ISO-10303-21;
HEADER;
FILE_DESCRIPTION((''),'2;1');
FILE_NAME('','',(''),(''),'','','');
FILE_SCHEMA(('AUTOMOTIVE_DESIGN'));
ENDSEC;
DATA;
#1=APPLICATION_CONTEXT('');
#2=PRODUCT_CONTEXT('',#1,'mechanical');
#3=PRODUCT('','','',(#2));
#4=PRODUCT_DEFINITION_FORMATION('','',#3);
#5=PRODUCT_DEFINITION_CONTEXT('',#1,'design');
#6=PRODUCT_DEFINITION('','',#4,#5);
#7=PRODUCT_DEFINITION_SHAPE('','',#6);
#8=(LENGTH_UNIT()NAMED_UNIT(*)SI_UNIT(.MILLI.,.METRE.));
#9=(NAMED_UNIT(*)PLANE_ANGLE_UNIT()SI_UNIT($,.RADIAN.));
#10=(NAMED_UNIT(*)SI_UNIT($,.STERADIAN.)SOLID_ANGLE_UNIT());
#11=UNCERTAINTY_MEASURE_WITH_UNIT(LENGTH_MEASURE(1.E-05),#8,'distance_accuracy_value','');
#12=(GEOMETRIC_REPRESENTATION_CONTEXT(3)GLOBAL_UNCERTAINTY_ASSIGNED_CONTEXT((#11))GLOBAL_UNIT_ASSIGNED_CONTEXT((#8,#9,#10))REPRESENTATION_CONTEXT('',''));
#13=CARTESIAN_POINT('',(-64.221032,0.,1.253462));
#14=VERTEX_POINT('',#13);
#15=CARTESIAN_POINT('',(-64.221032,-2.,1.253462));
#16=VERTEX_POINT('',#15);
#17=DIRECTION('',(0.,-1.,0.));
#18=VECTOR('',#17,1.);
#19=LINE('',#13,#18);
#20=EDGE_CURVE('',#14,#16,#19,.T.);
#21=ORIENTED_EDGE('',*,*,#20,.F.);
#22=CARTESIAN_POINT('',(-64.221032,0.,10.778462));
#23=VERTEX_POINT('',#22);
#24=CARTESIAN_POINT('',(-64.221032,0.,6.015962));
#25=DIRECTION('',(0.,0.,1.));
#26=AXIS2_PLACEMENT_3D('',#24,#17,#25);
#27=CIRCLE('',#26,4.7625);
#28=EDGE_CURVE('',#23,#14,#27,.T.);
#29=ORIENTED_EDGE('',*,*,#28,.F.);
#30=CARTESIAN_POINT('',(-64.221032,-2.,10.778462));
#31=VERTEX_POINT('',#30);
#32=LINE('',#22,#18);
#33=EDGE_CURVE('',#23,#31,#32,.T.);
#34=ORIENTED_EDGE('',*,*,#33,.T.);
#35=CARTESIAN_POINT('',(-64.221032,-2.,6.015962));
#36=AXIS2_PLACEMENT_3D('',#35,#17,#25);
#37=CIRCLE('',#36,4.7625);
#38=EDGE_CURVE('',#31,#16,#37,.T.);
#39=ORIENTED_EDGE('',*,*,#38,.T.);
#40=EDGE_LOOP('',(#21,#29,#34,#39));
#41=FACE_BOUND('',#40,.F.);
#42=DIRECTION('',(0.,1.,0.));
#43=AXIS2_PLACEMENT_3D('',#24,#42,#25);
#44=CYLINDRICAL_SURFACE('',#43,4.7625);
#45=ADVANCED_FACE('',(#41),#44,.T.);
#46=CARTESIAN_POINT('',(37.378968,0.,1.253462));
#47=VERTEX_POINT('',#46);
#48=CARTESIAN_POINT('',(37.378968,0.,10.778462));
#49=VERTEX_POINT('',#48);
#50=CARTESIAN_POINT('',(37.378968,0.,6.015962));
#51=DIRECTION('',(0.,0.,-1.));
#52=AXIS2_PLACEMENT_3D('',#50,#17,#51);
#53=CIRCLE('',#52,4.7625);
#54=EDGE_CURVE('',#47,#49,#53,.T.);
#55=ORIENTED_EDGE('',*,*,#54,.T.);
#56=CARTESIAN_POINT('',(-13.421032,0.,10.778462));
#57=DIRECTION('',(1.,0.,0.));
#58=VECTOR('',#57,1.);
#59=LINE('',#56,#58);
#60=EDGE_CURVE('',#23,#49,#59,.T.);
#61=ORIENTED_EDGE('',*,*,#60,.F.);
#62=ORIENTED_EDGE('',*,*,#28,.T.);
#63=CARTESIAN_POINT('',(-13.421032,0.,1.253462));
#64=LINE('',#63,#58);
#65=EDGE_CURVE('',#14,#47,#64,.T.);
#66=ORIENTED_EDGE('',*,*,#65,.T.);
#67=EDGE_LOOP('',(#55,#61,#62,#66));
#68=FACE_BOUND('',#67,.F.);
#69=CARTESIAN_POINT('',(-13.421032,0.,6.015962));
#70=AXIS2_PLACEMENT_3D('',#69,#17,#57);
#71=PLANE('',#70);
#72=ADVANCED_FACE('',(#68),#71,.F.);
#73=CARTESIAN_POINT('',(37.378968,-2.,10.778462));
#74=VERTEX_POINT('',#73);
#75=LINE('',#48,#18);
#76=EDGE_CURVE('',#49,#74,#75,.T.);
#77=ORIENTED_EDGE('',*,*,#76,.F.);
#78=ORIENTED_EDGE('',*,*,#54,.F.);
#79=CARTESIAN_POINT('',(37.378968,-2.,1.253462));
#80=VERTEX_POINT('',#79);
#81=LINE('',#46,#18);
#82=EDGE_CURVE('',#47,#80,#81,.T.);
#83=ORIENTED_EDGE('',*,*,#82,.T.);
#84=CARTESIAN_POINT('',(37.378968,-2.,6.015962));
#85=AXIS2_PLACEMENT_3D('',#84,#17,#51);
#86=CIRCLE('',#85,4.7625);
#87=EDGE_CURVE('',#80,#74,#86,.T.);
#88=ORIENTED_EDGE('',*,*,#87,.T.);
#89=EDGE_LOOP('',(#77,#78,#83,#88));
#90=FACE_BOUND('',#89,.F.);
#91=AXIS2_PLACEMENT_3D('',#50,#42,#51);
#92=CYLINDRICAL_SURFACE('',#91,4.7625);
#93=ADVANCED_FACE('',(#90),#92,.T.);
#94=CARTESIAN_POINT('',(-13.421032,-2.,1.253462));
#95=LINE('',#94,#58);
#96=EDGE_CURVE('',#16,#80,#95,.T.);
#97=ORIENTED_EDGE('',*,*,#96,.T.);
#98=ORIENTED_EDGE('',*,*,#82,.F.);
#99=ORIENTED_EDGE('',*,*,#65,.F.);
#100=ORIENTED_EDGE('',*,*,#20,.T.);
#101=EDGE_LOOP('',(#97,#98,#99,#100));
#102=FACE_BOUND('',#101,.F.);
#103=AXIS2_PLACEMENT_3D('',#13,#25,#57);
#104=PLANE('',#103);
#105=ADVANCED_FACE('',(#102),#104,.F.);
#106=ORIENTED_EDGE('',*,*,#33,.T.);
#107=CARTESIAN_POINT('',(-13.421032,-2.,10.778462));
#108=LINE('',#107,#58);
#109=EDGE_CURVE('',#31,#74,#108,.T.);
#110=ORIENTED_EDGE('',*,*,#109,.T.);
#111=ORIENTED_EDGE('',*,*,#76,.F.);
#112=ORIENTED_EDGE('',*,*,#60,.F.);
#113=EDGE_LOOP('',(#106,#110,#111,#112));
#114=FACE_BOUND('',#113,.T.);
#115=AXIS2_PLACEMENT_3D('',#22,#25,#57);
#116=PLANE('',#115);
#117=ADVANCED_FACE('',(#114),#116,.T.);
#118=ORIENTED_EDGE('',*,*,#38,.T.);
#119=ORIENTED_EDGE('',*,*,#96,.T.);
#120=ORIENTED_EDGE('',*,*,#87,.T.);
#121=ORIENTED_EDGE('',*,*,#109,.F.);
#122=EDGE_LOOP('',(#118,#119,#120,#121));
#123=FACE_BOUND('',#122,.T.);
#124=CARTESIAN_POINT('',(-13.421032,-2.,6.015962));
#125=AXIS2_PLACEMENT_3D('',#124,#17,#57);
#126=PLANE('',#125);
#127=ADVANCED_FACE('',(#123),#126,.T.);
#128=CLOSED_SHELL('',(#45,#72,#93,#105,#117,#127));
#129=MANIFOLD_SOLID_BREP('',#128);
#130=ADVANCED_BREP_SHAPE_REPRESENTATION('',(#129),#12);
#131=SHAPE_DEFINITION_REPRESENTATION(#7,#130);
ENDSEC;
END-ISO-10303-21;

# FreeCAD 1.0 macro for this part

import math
import FreeCAD as App
import Part
import Sketcher
Q = App.Units.Quantity

doc = App.newDocument("Part")
body = doc.addObject("PartDesign::Body", "Body")

sketch1 = body.newObject("Sketcher::SketchObject", "Sketch")
sketch1.AttachmentSupport = (doc.getObject("XZ_Plane"), [""])
sketch1.MapMode = "FlatFace"
sketch1.addGeometry([
    Part.LineSegment(App.Vector(-64.2, 1.3, 0), App.Vector(37.4, 1.3, 0)),
    Part.ArcOfCircle(Part.Circle(App.Vector(37.4, 6, 0), App.Vector(0, 0, 1), 4.8), math.radians(-90), math.radians(90)),
    Part.LineSegment(App.Vector(37.4, 10.8, 0), App.Vector(-64.2, 10.8, 0)),
    Part.ArcOfCircle(Part.Circle(App.Vector(-64.2, 6, 0), App.Vector(0, 0, 1), 4.8), math.radians(90), math.radians(270)),
], False)
sketch1.addConstraint([
    Sketcher.Constraint("Tangent", 0, 2, 1, 1),
    Sketcher.Constraint("Tangent", 1, 2, 2, 1),
    Sketcher.Constraint("Tangent", 2, 2, 3, 1),
    Sketcher.Constraint("Tangent", 3, 2, 0, 1),
    Sketcher.Constraint("Horizontal", 0),
    Sketcher.Constraint("Horizontal", 2),
    Sketcher.Constraint("DistanceX", 0, 1, 0, 2, Q("4 in")),
    Sketcher.Constraint("Radius", 1, Q("0.1875 in")),
    Sketcher.Constraint("DistanceX", 3, 3, -1, 1, Q("64.221032 mm")),
    Sketcher.Constraint("DistanceY", -1, 1, 2, 2, Q("10.778462 mm")),
])
pad1 = body.newObject("PartDesign::Pad", "Pad")
pad1.Profile = sketch1
pad1.Length = 2

doc.recompute()
